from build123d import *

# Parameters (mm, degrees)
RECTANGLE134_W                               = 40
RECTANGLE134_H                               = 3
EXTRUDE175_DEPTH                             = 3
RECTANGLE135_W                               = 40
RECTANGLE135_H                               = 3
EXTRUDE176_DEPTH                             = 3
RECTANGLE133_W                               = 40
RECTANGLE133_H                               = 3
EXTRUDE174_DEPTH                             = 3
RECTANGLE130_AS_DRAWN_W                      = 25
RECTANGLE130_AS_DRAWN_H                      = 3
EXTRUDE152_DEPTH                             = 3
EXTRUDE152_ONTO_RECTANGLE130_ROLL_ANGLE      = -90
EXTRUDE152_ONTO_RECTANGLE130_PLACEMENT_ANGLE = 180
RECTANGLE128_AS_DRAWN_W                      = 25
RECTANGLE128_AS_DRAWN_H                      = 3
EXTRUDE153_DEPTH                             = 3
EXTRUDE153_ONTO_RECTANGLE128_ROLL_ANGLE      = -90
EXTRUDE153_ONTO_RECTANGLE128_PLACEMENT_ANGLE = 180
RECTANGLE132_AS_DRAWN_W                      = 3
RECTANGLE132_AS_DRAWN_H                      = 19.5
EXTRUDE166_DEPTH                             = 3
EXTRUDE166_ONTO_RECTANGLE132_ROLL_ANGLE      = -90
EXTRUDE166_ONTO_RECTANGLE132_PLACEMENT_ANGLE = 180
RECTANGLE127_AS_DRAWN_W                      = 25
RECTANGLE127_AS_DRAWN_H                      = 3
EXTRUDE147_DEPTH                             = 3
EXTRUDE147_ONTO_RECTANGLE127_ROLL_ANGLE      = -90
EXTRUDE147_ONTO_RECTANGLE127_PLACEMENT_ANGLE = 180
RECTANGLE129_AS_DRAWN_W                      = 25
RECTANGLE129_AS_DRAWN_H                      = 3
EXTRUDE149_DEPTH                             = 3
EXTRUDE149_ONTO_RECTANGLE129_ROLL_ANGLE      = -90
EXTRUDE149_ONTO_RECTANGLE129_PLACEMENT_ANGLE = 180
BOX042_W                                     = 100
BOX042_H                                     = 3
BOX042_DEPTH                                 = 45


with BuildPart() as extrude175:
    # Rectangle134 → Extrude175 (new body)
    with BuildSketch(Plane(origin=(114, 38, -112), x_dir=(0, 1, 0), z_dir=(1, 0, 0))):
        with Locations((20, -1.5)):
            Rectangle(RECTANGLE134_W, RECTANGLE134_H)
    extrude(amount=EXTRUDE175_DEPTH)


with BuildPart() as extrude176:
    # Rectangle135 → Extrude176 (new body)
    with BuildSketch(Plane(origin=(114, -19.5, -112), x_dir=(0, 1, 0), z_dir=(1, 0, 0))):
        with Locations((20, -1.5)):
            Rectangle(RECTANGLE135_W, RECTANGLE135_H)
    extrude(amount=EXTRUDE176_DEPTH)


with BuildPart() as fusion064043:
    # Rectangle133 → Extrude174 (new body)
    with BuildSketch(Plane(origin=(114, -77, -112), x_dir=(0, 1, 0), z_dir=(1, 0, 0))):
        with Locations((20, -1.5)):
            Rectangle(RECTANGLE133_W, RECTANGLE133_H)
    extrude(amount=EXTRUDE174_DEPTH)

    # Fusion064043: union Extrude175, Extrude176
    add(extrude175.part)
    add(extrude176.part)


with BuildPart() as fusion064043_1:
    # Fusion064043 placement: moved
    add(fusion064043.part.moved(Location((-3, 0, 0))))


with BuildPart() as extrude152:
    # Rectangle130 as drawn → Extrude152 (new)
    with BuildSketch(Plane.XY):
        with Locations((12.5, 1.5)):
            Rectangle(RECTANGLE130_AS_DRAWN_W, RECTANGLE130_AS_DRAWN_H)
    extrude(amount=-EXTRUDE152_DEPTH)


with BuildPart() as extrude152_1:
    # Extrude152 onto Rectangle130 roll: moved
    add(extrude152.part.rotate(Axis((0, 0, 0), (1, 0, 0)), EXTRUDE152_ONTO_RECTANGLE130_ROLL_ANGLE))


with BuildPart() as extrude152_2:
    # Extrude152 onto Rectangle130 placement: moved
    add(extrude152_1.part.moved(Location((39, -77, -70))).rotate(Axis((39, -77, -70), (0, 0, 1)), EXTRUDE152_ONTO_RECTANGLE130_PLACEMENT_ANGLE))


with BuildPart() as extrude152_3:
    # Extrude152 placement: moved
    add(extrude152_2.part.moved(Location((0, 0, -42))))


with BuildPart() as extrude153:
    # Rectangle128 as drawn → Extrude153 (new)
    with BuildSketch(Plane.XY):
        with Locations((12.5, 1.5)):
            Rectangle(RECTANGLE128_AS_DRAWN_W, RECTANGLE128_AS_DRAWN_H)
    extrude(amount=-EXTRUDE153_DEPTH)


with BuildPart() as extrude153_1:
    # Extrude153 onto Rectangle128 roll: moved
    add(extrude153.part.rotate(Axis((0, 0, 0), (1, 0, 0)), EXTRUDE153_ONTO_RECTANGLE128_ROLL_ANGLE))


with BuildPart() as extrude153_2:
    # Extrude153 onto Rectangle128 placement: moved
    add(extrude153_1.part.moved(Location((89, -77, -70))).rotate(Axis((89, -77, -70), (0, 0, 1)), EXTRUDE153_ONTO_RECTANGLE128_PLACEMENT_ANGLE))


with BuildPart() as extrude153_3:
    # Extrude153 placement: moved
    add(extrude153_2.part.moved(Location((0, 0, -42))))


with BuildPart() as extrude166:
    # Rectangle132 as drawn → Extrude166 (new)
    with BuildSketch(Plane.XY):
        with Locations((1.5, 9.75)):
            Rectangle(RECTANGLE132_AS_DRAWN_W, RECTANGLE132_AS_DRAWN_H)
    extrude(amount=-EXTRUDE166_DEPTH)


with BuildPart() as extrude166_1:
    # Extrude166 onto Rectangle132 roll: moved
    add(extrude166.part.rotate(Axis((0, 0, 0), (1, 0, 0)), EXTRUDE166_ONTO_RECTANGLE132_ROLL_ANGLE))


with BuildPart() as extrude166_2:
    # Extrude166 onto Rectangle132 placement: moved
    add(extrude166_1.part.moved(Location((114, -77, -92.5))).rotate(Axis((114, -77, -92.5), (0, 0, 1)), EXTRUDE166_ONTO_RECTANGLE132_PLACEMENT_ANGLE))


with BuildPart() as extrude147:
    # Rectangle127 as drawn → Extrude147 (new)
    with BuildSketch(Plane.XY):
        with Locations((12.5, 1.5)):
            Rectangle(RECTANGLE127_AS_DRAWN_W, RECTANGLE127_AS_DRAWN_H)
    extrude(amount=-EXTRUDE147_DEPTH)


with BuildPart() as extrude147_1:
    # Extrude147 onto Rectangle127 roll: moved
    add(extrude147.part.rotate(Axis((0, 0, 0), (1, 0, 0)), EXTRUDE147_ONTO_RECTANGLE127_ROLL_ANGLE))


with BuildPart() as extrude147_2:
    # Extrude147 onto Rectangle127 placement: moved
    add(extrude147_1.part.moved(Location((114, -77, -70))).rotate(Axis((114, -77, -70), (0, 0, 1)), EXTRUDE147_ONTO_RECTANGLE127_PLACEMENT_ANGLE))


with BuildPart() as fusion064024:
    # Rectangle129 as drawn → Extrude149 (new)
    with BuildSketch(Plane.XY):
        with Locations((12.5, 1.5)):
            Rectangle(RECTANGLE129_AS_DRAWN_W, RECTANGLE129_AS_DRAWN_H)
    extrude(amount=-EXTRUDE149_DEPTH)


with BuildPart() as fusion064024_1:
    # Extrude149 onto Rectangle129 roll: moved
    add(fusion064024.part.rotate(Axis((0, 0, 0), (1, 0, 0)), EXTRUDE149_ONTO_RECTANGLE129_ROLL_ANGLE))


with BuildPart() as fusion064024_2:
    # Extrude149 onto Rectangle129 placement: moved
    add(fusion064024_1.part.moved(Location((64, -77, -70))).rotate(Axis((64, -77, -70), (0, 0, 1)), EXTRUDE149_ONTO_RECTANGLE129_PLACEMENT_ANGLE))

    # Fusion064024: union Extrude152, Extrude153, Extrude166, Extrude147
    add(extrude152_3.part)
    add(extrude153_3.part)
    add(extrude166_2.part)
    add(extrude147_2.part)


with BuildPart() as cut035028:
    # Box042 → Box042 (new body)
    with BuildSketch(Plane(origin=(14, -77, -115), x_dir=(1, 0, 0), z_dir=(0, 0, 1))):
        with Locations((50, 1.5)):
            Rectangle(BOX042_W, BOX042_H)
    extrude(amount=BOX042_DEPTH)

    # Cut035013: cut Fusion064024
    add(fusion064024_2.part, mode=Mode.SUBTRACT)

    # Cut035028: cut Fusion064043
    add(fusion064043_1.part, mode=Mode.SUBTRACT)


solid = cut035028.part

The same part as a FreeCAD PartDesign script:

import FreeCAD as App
import Part
import Sketcher


def add_polygon(sketch, points):
    """Adds a closed chain of lines whose ends are joined by coincident constraints."""
    first, n = sketch.GeometryCount, len(points)
    for a, b in zip(points, points[1:] + points[:1]):
        sketch.addGeometry(Part.LineSegment(App.Vector(*a, 0), App.Vector(*b, 0)), False)
    for i in range(n):
        sketch.addConstraint(Sketcher.Constraint("Coincident", first + i, 2, first + (i + 1) % n, 1))

doc = App.newDocument("Part")
body = doc.addObject("PartDesign::Body", "Body")

# Sketch on YZ plane
sketch1 = doc.addObject("Sketcher::SketchObject", "Sketch")
body.addObject(sketch1)
sketch1.AttachmentSupport = (doc.YZ_Plane, [""])
sketch1.MapMode = "FlatFace"
sketch1.AttachmentOffset = App.Placement(App.Vector(0, 0, 114), App.Rotation())
add_polygon(sketch1, [(38, -112), (38, -115), (78, -115), (78, -112)])  # lines 0-3
sketch1.addConstraint([
    Sketcher.Constraint("Vertical", 0),
    Sketcher.Constraint("Horizontal", 1),
    Sketcher.Constraint("Vertical", 2),
    Sketcher.Constraint("Horizontal", 3),
    Sketcher.Constraint("DistanceX", 1, 1, 1, 2, 40.0),
    Sketcher.Constraint("DistanceY", 0, 2, 0, 1, 3.0),
    Sketcher.Constraint("DistanceX", -1, 1, 0, 2, 38.0),
    Sketcher.Constraint("DistanceY", 0, 2, -1, 1, 115.0),
])
pad1 = doc.addObject("PartDesign::Pad", "Pad")
body.addObject(pad1)
pad1.Profile = sketch1
pad1.Length = 3
body2 = doc.addObject("PartDesign::Body", "Body001")

# Sketch on YZ plane
sketch2 = doc.addObject("Sketcher::SketchObject", "Sketch001")
body2.addObject(sketch2)
sketch2.AttachmentSupport = (doc.getObject("YZ_Plane001"), [""])
sketch2.MapMode = "FlatFace"
sketch2.AttachmentOffset = App.Placement(App.Vector(0, 0, 114), App.Rotation())
add_polygon(sketch2, [(-19.5, -112), (-19.5, -115), (20.5, -115), (20.5, -112)])  # lines 0-3
sketch2.addConstraint([
    Sketcher.Constraint("Vertical", 0),
    Sketcher.Constraint("Horizontal", 1),
    Sketcher.Constraint("Vertical", 2),
    Sketcher.Constraint("Horizontal", 3),
    Sketcher.Constraint("DistanceX", 1, 1, 1, 2, 40.0),
    Sketcher.Constraint("DistanceY", 0, 2, 0, 1, 3.0),
    Sketcher.Constraint("DistanceY", 0, 2, -1, 1, 115.0),
    Sketcher.Constraint("DistanceX", 0, 2, -1, 1, 19.5),
])
pad2 = doc.addObject("PartDesign::Pad", "Pad001")
body2.addObject(pad2)
pad2.Profile = sketch2
pad2.Length = 3
body3 = doc.addObject("PartDesign::Body", "Body002")
body3.AllowCompound = True

# Sketch on YZ plane
sketch3 = doc.addObject("Sketcher::SketchObject", "Sketch002")
body3.addObject(sketch3)
sketch3.AttachmentSupport = (doc.getObject("YZ_Plane002"), [""])
sketch3.MapMode = "FlatFace"
sketch3.AttachmentOffset = App.Placement(App.Vector(0, 0, 114), App.Rotation())
add_polygon(sketch3, [(-77, -112), (-77, -115), (-37, -115), (-37, -112)])  # lines 0-3
sketch3.addConstraint([
    Sketcher.Constraint("Vertical", 0),
    Sketcher.Constraint("Horizontal", 1),
    Sketcher.Constraint("Vertical", 2),
    Sketcher.Constraint("Horizontal", 3),
    Sketcher.Constraint("DistanceX", 1, 1, 1, 2, 40.0),
    Sketcher.Constraint("DistanceY", 0, 2, 0, 1, 3.0),
    Sketcher.Constraint("DistanceX", 0, 2, -1, 1, 77.0),
    Sketcher.Constraint("DistanceY", 0, 2, -1, 1, 115.0),
])
pad3 = doc.addObject("PartDesign::Pad", "Pad002")
body3.addObject(pad3)
pad3.Profile = sketch3
pad3.Length = 3
doc.recompute()

boolean = doc.addObject("PartDesign::Boolean", "Boolean")
body3.addObject(boolean)
boolean.Type = "Fuse"
boolean.addObjects([body])
doc.recompute()

boolean2 = doc.addObject("PartDesign::Boolean", "Boolean001")
body3.addObject(boolean2)
boolean2.Type = "Fuse"
boolean2.addObjects([body2])
body4 = doc.addObject("PartDesign::Body", "Body003")
body4.AllowCompound = True
doc.recompute()

body3.Placement = App.Placement(App.Vector(-3, 0, 0), App.Rotation(App.Vector(0, 0, 1), 0))
boolean3 = doc.addObject("PartDesign::Boolean", "Boolean002")
body4.addObject(boolean3)
boolean3.Type = "Fuse"
boolean3.addObjects([body3])
body5 = doc.addObject("PartDesign::Body", "Body004")

# Sketch on XY plane
sketch4 = doc.addObject("Sketcher::SketchObject", "Sketch003")
body5.addObject(sketch4)
sketch4.AttachmentSupport = (doc.getObject("XY_Plane004"), [""])
sketch4.MapMode = "FlatFace"
add_polygon(sketch4, [(0, 3), (0, 0), (25, 0), (25, 3)])  # lines 0-3
sketch4.addConstraint([
    Sketcher.Constraint("Vertical", 0),
    Sketcher.Constraint("Horizontal", 1),
    Sketcher.Constraint("Vertical", 2),
    Sketcher.Constraint("Horizontal", 3),
    Sketcher.Constraint("Coincident", 0, 2, -1, 1),
    Sketcher.Constraint("DistanceX", 1, 1, 1, 2, 25.0),
    Sketcher.Constraint("DistanceY", 0, 2, 0, 1, 3.0),
])
pad4 = doc.addObject("PartDesign::Pad", "Pad003")
body5.addObject(pad4)
pad4.Profile = sketch4
pad4.Length = 3
pad4.Reversed = True
body6 = doc.addObject("PartDesign::Body", "Body005")
doc.recompute()

body5.Placement = App.Placement(App.Vector(0, 0, 0), App.Rotation(App.Vector(1, 0, 0), 270))
boolean4 = doc.addObject("PartDesign::Boolean", "Boolean003")
body6.addObject(boolean4)
boolean4.Type = "Fuse"
boolean4.addObjects([body5])
body7 = doc.addObject("PartDesign::Body", "Body006")
doc.recompute()

body6.Placement = App.Placement(App.Vector(39, -77, -70), App.Rotation(App.Vector(0, 0, 1), 180))
boolean5 = doc.addObject("PartDesign::Boolean", "Boolean004")
body7.addObject(boolean5)
boolean5.Type = "Fuse"
boolean5.addObjects([body6])
body8 = doc.addObject("PartDesign::Body", "Body007")
doc.recompute()

body7.Placement = App.Placement(App.Vector(0, 0, -42), App.Rotation(App.Vector(0, 0, 1), 0))
boolean6 = doc.addObject("PartDesign::Boolean", "Boolean005")
body8.addObject(boolean6)
boolean6.Type = "Fuse"
boolean6.addObjects([body7])
body9 = doc.addObject("PartDesign::Body", "Body008")

# Sketch on XY plane
sketch5 = doc.addObject("Sketcher::SketchObject", "Sketch004")
body9.addObject(sketch5)
sketch5.AttachmentSupport = (doc.getObject("XY_Plane008"), [""])
sketch5.MapMode = "FlatFace"
add_polygon(sketch5, [(0, 3), (0, 0), (25, 0), (25, 3)])  # lines 0-3
sketch5.addConstraint([
    Sketcher.Constraint("Vertical", 0),
    Sketcher.Constraint("Horizontal", 1),
    Sketcher.Constraint("Vertical", 2),
    Sketcher.Constraint("Horizontal", 3),
    Sketcher.Constraint("Coincident", 0, 2, -1, 1),
    Sketcher.Constraint("DistanceX", 1, 1, 1, 2, 25.0),
    Sketcher.Constraint("DistanceY", 0, 2, 0, 1, 3.0),
])
pad5 = doc.addObject("PartDesign::Pad", "Pad004")
body9.addObject(pad5)
pad5.Profile = sketch5
pad5.Length = 3
pad5.Reversed = True
body10 = doc.addObject("PartDesign::Body", "Body009")
doc.recompute()

body9.Placement = App.Placement(App.Vector(0, 0, 0), App.Rotation(App.Vector(1, 0, 0), 270))
boolean7 = doc.addObject("PartDesign::Boolean", "Boolean006")
body10.addObject(boolean7)
boolean7.Type = "Fuse"
boolean7.addObjects([body9])
body11 = doc.addObject("PartDesign::Body", "Body010")
doc.recompute()

body10.Placement = App.Placement(App.Vector(89, -77, -70), App.Rotation(App.Vector(0, 0, 1), 180))
boolean8 = doc.addObject("PartDesign::Boolean", "Boolean007")
body11.addObject(boolean8)
boolean8.Type = "Fuse"
boolean8.addObjects([body10])
body12 = doc.addObject("PartDesign::Body", "Body011")
doc.recompute()

body11.Placement = App.Placement(App.Vector(0, 0, -42), App.Rotation(App.Vector(0, 0, 1), 0))
boolean9 = doc.addObject("PartDesign::Boolean", "Boolean008")
body12.addObject(boolean9)
boolean9.Type = "Fuse"
boolean9.addObjects([body11])
body13 = doc.addObject("PartDesign::Body", "Body012")

# Sketch on XY plane
sketch6 = doc.addObject("Sketcher::SketchObject", "Sketch005")
body13.addObject(sketch6)
sketch6.AttachmentSupport = (doc.getObject("XY_Plane012"), [""])
sketch6.MapMode = "FlatFace"
add_polygon(sketch6, [(0, 19.5), (0, 0), (3, 0), (3, 19.5)])  # lines 0-3
sketch6.addConstraint([
    Sketcher.Constraint("Vertical", 0),
    Sketcher.Constraint("Horizontal", 1),
    Sketcher.Constraint("Vertical", 2),
    Sketcher.Constraint("Horizontal", 3),
    Sketcher.Constraint("Coincident", 0, 2, -1, 1),
    Sketcher.Constraint("DistanceX", 1, 1, 1, 2, 3.0),
    Sketcher.Constraint("DistanceY", 0, 2, 0, 1, 19.5),
])
pad6 = doc.addObject("PartDesign::Pad", "Pad005")
body13.addObject(pad6)
pad6.Profile = sketch6
pad6.Length = 3
pad6.Reversed = True
body14 = doc.addObject("PartDesign::Body", "Body013")
doc.recompute()

body13.Placement = App.Placement(App.Vector(0, 0, 0), App.Rotation(App.Vector(1, 0, 0), 270))
boolean10 = doc.addObject("PartDesign::Boolean", "Boolean009")
body14.addObject(boolean10)
boolean10.Type = "Fuse"
boolean10.addObjects([body13])
body15 = doc.addObject("PartDesign::Body", "Body014")
doc.recompute()

body14.Placement = App.Placement(App.Vector(114, -77, -92.5), App.Rotation(App.Vector(0, 0, 1), 180))
boolean11 = doc.addObject("PartDesign::Boolean", "Boolean010")
body15.addObject(boolean11)
boolean11.Type = "Fuse"
boolean11.addObjects([body14])
body16 = doc.addObject("PartDesign::Body", "Body015")

# Sketch on XY plane
sketch7 = doc.addObject("Sketcher::SketchObject", "Sketch006")
body16.addObject(sketch7)
sketch7.AttachmentSupport = (doc.getObject("XY_Plane015"), [""])
sketch7.MapMode = "FlatFace"
add_polygon(sketch7, [(0, 3), (0, 0), (25, 0), (25, 3)])  # lines 0-3
sketch7.addConstraint([
    Sketcher.Constraint("Vertical", 0),
    Sketcher.Constraint("Horizontal", 1),
    Sketcher.Constraint("Vertical", 2),
    Sketcher.Constraint("Horizontal", 3),
    Sketcher.Constraint("Coincident", 0, 2, -1, 1),
    Sketcher.Constraint("DistanceX", 1, 1, 1, 2, 25.0),
    Sketcher.Constraint("DistanceY", 0, 2, 0, 1, 3.0),
])
pad7 = doc.addObject("PartDesign::Pad", "Pad006")
body16.addObject(pad7)
pad7.Profile = sketch7
pad7.Length = 3
pad7.Reversed = True
body17 = doc.addObject("PartDesign::Body", "Body016")
doc.recompute()

body16.Placement = App.Placement(App.Vector(0, 0, 0), App.Rotation(App.Vector(1, 0, 0), 270))
boolean12 = doc.addObject("PartDesign::Boolean", "Boolean011")
body17.addObject(boolean12)
boolean12.Type = "Fuse"
boolean12.addObjects([body16])
body18 = doc.addObject("PartDesign::Body", "Body017")
doc.recompute()

body17.Placement = App.Placement(App.Vector(114, -77, -70), App.Rotation(App.Vector(0, 0, 1), 180))
boolean13 = doc.addObject("PartDesign::Boolean", "Boolean012")
body18.addObject(boolean13)
boolean13.Type = "Fuse"
boolean13.addObjects([body17])
body19 = doc.addObject("PartDesign::Body", "Body018")

# Sketch on XY plane
sketch8 = doc.addObject("Sketcher::SketchObject", "Sketch007")
body19.addObject(sketch8)
sketch8.AttachmentSupport = (doc.getObject("XY_Plane018"), [""])
sketch8.MapMode = "FlatFace"
add_polygon(sketch8, [(0, 3), (0, 0), (25, 0), (25, 3)])  # lines 0-3
sketch8.addConstraint([
    Sketcher.Constraint("Vertical", 0),
    Sketcher.Constraint("Horizontal", 1),
    Sketcher.Constraint("Vertical", 2),
    Sketcher.Constraint("Horizontal", 3),
    Sketcher.Constraint("Coincident", 0, 2, -1, 1),
    Sketcher.Constraint("DistanceX", 1, 1, 1, 2, 25.0),
    Sketcher.Constraint("DistanceY", 0, 2, 0, 1, 3.0),
])
pad8 = doc.addObject("PartDesign::Pad", "Pad007")
body19.addObject(pad8)
pad8.Profile = sketch8
pad8.Length = 3
pad8.Reversed = True
body20 = doc.addObject("PartDesign::Body", "Body019")
doc.recompute()

body19.Placement = App.Placement(App.Vector(0, 0, 0), App.Rotation(App.Vector(1, 0, 0), 270))
boolean14 = doc.addObject("PartDesign::Boolean", "Boolean013")
body20.addObject(boolean14)
boolean14.Type = "Fuse"
boolean14.addObjects([body19])
body21 = doc.addObject("PartDesign::Body", "Body020")
body21.AllowCompound = True
doc.recompute()

body20.Placement = App.Placement(App.Vector(64, -77, -70), App.Rotation(App.Vector(0, 0, 1), 180))
boolean15 = doc.addObject("PartDesign::Boolean", "Boolean014")
body21.addObject(boolean15)
boolean15.Type = "Fuse"
boolean15.addObjects([body20])
doc.recompute()

boolean16 = doc.addObject("PartDesign::Boolean", "Boolean015")
body21.addObject(boolean16)
boolean16.Type = "Fuse"
boolean16.addObjects([body8])
doc.recompute()

boolean17 = doc.addObject("PartDesign::Boolean", "Boolean016")
body21.addObject(boolean17)
boolean17.Type = "Fuse"
boolean17.addObjects([body12])
doc.recompute()

boolean18 = doc.addObject("PartDesign::Boolean", "Boolean017")
body21.addObject(boolean18)
boolean18.Type = "Fuse"
boolean18.addObjects([body15])
doc.recompute()

boolean19 = doc.addObject("PartDesign::Boolean", "Boolean018")
body21.addObject(boolean19)
boolean19.Type = "Fuse"
boolean19.addObjects([body18])
body22 = doc.addObject("PartDesign::Body", "Body021")

# Sketch on XY plane
sketch9 = doc.addObject("Sketcher::SketchObject", "Sketch008")
body22.addObject(sketch9)
sketch9.AttachmentSupport = (doc.getObject("XY_Plane021"), [""])
sketch9.MapMode = "FlatFace"
sketch9.AttachmentOffset = App.Placement(App.Vector(0, 0, -115), App.Rotation())
add_polygon(sketch9, [(14, -74), (14, -77), (114, -77), (114, -74)])  # lines 0-3
sketch9.addConstraint([
    Sketcher.Constraint("Vertical", 0),
    Sketcher.Constraint("Horizontal", 1),
    Sketcher.Constraint("Vertical", 2),
    Sketcher.Constraint("Horizontal", 3),
    Sketcher.Constraint("DistanceX", 1, 1, 1, 2, 100.0),
    Sketcher.Constraint("DistanceY", 0, 2, 0, 1, 3.0),
    Sketcher.Constraint("DistanceX", -1, 1, 0, 2, 14.0),
    Sketcher.Constraint("DistanceY", 0, 2, -1, 1, 77.0),
])
pad9 = doc.addObject("PartDesign::Pad", "Pad008")
body22.addObject(pad9)
pad9.Profile = sketch9
pad9.Length = 45
doc.recompute()

boolean20 = doc.addObject("PartDesign::Boolean", "Boolean019")
body22.addObject(boolean20)
boolean20.Type = "Cut"
boolean20.addObjects([body21])
doc.recompute()

boolean21 = doc.addObject("PartDesign::Boolean", "Boolean020")
body22.addObject(boolean21)
boolean21.Type = "Cut"
boolean21.addObjects([body4])

doc.recompute()
